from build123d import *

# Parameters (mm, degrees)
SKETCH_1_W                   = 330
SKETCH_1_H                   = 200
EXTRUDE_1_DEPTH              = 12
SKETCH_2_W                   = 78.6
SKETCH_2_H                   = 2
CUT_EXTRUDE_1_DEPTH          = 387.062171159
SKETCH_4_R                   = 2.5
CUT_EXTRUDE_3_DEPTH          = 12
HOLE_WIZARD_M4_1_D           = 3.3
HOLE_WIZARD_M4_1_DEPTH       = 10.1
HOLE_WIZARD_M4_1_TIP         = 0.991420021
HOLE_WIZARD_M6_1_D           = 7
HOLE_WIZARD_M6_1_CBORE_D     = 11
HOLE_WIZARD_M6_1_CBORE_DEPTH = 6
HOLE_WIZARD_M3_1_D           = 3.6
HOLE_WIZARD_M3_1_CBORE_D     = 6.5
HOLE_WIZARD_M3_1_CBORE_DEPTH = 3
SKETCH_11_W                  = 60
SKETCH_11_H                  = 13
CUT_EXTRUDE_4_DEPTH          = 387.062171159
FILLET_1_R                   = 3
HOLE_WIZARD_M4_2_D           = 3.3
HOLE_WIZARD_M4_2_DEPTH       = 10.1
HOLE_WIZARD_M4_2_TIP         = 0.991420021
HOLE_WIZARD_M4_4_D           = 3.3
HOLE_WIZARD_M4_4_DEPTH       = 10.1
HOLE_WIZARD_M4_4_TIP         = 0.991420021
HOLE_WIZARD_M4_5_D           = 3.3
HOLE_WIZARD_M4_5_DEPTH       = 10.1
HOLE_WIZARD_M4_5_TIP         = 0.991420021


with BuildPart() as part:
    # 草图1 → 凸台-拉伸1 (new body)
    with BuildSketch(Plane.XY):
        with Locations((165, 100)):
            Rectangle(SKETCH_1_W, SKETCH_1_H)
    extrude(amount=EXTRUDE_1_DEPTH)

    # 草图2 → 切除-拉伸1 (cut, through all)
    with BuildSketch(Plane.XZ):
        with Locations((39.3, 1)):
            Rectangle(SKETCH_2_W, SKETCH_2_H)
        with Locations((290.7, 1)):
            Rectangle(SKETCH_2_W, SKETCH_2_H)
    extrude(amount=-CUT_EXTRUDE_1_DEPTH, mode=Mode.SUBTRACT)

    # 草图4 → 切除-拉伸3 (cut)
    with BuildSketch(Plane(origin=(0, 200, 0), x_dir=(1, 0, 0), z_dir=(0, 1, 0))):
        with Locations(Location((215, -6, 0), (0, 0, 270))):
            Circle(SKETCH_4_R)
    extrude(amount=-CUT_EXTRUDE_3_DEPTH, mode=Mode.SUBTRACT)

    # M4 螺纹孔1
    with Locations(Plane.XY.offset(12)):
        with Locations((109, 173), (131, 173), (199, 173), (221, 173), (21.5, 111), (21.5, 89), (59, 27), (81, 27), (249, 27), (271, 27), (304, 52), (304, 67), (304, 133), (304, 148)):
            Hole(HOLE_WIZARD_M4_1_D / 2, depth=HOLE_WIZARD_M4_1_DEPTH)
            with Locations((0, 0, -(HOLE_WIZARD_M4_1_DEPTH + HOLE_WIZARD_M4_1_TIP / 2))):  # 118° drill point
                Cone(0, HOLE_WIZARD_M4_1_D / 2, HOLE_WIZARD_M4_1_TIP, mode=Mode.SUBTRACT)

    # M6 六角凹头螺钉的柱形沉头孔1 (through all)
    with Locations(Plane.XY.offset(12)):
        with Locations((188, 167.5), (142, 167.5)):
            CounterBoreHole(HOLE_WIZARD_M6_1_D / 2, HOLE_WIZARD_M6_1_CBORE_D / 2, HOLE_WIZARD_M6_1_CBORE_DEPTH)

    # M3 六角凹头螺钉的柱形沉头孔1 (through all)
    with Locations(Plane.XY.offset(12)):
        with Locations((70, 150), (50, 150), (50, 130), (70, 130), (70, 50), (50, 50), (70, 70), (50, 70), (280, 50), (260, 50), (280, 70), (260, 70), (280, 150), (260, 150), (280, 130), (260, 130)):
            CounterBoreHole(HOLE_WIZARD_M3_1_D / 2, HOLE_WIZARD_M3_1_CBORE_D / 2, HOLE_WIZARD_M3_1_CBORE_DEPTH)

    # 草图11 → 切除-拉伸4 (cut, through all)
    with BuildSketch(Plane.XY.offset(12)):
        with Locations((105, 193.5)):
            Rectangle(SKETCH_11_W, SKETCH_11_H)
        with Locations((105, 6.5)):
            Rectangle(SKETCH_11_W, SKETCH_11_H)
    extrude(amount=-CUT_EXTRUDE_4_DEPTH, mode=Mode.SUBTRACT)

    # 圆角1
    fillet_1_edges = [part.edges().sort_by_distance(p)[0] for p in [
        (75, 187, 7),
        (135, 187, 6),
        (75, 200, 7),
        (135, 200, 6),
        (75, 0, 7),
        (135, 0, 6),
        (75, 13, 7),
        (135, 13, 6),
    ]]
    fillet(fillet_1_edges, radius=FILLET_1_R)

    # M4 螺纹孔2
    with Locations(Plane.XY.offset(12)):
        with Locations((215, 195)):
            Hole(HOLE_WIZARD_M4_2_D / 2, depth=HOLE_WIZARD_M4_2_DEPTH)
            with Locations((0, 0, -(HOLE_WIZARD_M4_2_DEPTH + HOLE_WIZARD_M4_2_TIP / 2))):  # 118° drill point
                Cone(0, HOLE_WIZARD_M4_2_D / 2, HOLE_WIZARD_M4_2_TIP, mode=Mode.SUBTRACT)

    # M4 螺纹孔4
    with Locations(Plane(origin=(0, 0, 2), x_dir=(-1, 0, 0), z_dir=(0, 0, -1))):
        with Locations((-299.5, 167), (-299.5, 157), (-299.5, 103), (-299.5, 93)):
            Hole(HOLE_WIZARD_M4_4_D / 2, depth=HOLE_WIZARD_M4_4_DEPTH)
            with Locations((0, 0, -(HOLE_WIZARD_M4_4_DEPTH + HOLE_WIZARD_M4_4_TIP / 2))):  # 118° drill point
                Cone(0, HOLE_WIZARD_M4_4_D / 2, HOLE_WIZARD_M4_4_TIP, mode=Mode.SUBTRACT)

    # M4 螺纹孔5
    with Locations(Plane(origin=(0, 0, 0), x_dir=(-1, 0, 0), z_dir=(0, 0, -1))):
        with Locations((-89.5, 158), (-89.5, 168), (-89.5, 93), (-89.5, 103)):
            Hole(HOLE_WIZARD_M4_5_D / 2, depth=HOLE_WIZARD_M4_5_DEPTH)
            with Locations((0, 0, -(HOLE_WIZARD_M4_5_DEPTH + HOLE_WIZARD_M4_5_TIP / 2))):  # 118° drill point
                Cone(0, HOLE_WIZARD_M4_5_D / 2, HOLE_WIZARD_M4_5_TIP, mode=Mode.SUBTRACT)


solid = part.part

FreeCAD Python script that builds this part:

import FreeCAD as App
import Part
import Sketcher
from FreeCAD import Vector
Q = App.Units.Quantity


def edges_at(feature, points):
    """Names of the edges that pass closest to the given points."""
    edges = feature.Shape.Edges
    near = lambda p: min(range(len(edges)), key=lambda i: edges[i].distToShape(Part.Vertex(*p))[0])
    return sorted({f"Edge{near(p) + 1}" for p in points})


def add_polygon(sketch, points):
    """Adds a closed chain of lines whose ends are joined by coincident constraints."""
    first, n = sketch.GeometryCount, len(points)
    for a, b in zip(points, points[1:] + points[:1]):
        sketch.addGeometry(Part.LineSegment(App.Vector(*a, 0), App.Vector(*b, 0)), False)
    for i in range(n):
        sketch.addConstraint(Sketcher.Constraint("Coincident", first + i, 2, first + (i + 1) % n, 1))

doc = App.newDocument("Part")
params = doc.addObject("Spreadsheet::Sheet", "Params")
for row, (alias, value) in enumerate([
    ("sketch1_width", "330 mm"),
    ("sketch1_height", "200 mm"),
    ("pad1_length", "12 mm"),
    ("sketch2_height", "2 mm"),
    ("sketch2_width", "78.6 mm"),
    ("sketch3_diameter", "5 mm"),
    ("pocket2_length", "12 mm"),
    ("sketch4_diameter", "3.3 mm"),
    ("hole_diameter", "3.3 mm"),
    ("hole_depth", "10.1 mm"),
    ("sketch5_diameter", "7 mm"),
    ("hole2_diameter", "7 mm"),
    ("hole2_cbore_diameter", "11 mm"),
    ("hole2_cbore_depth", "6 mm"),
    ("sketch6_diameter", "3.6 mm"),
    ("hole3_diameter", "3.6 mm"),
    ("hole3_cbore_diameter", "6.5 mm"),
    ("hole3_cbore_depth", "3 mm"),
    ("sketch7_width", "60 mm"),
    ("sketch7_height", "13 mm"),
    ("fillet_radius", "3 mm"),
    ("sketch8_diameter", "3.3 mm"),
    ("hole4_diameter", "3.3 mm"),
    ("hole4_depth", "10.1 mm"),
    ("sketch9_diameter", "3.3 mm"),
    ("hole5_diameter", "3.3 mm"),
    ("hole5_depth", "10.1 mm"),
    ("sketch10_diameter", "3.3 mm"),
    ("hole6_diameter", "3.3 mm"),
    ("hole6_depth", "10.1 mm"),
], start=1):
    params.set(f"A{row}", alias)
    params.set(f"B{row}", "=" + value)
    params.setAlias(f"B{row}", alias)

body = doc.addObject("PartDesign::Body", "Body")

# Sketch on XY plane
sketch1 = body.newObject("Sketcher::SketchObject", "Sketch")
sketch1.AttachmentSupport = (doc.getObject("XY_Plane"), [""])
sketch1.MapMode = "FlatFace"
add_polygon(sketch1, [(0, 200), (0, 0), (330, 0), (330, 200)])  # lines 0-3
sketch1.addConstraint([
    Sketcher.Constraint("Vertical", 0),
    Sketcher.Constraint("Horizontal", 1),
    Sketcher.Constraint("Vertical", 2),
    Sketcher.Constraint("Horizontal", 3),
    Sketcher.Constraint("Coincident", 0, 2, -1, 1),
    Sketcher.Constraint("DistanceX", 1, 1, 1, 2, Q("330 mm")),
    Sketcher.Constraint("DistanceY", 0, 2, 0, 1, Q("200 mm")),
])
sketch1.setExpression("Constraints[9]", "Params.sketch1_width")
sketch1.setExpression("Constraints[10]", "Params.sketch1_height")
pad1 = body.newObject("PartDesign::Pad", "Pad")
pad1.Profile = sketch1
pad1.setExpression("Length", "Params.pad1_length")

# Sketch on XZ plane
sketch2 = body.newObject("Sketcher::SketchObject", "Sketch001")
sketch2.AttachmentSupport = (doc.getObject("XZ_Plane"), [""])
sketch2.MapMode = "FlatFace"
add_polygon(sketch2, [(0, 2), (0, 0), (78.6, 0), (78.6, 2)])  # lines 0-3
add_polygon(sketch2, [(251.4, 2), (251.4, 0), (330, 0), (330, 2)])  # lines 4-7
sketch2.addConstraint([
    Sketcher.Constraint("Vertical", 0),
    Sketcher.Constraint("Horizontal", 1),
    Sketcher.Constraint("Vertical", 2),
    Sketcher.Constraint("Horizontal", 3),
    Sketcher.Constraint("Vertical", 4),
    Sketcher.Constraint("Horizontal", 5),
    Sketcher.Constraint("Vertical", 6),
    Sketcher.Constraint("Horizontal", 7),
    Sketcher.Constraint("Coincident", 0, 2, -1, 1),
    Sketcher.Constraint("PointOnObject", 4, 2, -1),
    Sketcher.Constraint("Horizontal", 3, 2, 6, 2),
    Sketcher.Constraint("Equal", 3, 5),
    Sketcher.Constraint("DistanceY", 0, 2, 0, 1, Q("2 mm")),
    Sketcher.Constraint("DistanceX", 1, 1, 1, 2, Q("78.6 mm")),
    Sketcher.Constraint("DistanceX", -1, 1, 5, 2, Q("330 mm")),
])
sketch2.setExpression("Constraints[20]", "Params.sketch2_height")
sketch2.setExpression("Constraints[21]", "Params.sketch2_width")
pocket1 = body.newObject("PartDesign::Pocket", "Pocket")
pocket1.Profile = sketch2
pocket1.Type = "ThroughAll"

# Sketch on XZ plane
sketch3 = body.newObject("Sketcher::SketchObject", "Sketch002")
sketch3.AttachmentSupport = (doc.getObject("XZ_Plane"), [""])
sketch3.MapMode = "FlatFace"
sketch3.AttachmentOffset = App.Placement(Vector(0, 0, -200), App.Rotation())
sketch3.addGeometry(Part.Circle(Vector(215, 6, 0), Vector(0, 0, 1), 2.5), False)
sketch3.addConstraint([
    Sketcher.Constraint("Diameter", 0, Q("5 mm")),
    Sketcher.Constraint("DistanceX", -1, 1, 0, 3, Q("215 mm")),
    Sketcher.Constraint("DistanceY", -1, 1, 0, 3, Q("6 mm")),
])
sketch3.setExpression("Constraints[0]", "Params.sketch3_diameter")
pocket2 = body.newObject("PartDesign::Pocket", "Pocket001")
pocket2.Profile = sketch3
pocket2.setExpression("Length", "Params.pocket2_length")
pocket2.Reversed = True

# Sketch on XY plane
sketch4 = body.newObject("Sketcher::SketchObject", "Sketch003")
sketch4.AttachmentSupport = (doc.getObject("XY_Plane"), [""])
sketch4.MapMode = "FlatFace"
sketch4.AttachmentOffset = App.Placement(Vector(0, 0, 12), App.Rotation())
sketch4.addGeometry([
    Part.Circle(Vector(109, 173, 0), Vector(0, 0, 1), 1.65),  # 0
    Part.Circle(Vector(131, 173, 0), Vector(0, 0, 1), 1.65),  # 1
    Part.Circle(Vector(199, 173, 0), Vector(0, 0, 1), 1.65),  # 2
    Part.Circle(Vector(221, 173, 0), Vector(0, 0, 1), 1.65),  # 3
    Part.Circle(Vector(21.5, 111, 0), Vector(0, 0, 1), 1.65),  # 4
    Part.Circle(Vector(21.5, 89, 0), Vector(0, 0, 1), 1.65),  # 5
    Part.Circle(Vector(59, 27, 0), Vector(0, 0, 1), 1.65),  # 6
    Part.Circle(Vector(81, 27, 0), Vector(0, 0, 1), 1.65),  # 7
    Part.Circle(Vector(249, 27, 0), Vector(0, 0, 1), 1.65),  # 8
    Part.Circle(Vector(271, 27, 0), Vector(0, 0, 1), 1.65),  # 9
    Part.Circle(Vector(304, 52, 0), Vector(0, 0, 1), 1.65),  # 10
    Part.Circle(Vector(304, 67, 0), Vector(0, 0, 1), 1.65),  # 11
    Part.Circle(Vector(304, 133, 0), Vector(0, 0, 1), 1.65),  # 12
    Part.Circle(Vector(304, 148, 0), Vector(0, 0, 1), 1.65),  # 13
], False)
sketch4.addConstraint([
    Sketcher.Constraint("Equal", 0, 1),
    Sketcher.Constraint("Equal", 1, 2),
    Sketcher.Constraint("Equal", 2, 3),
    Sketcher.Constraint("Equal", 3, 4),
    Sketcher.Constraint("Equal", 4, 5),
    Sketcher.Constraint("Equal", 5, 6),
    Sketcher.Constraint("Equal", 6, 7),
    Sketcher.Constraint("Equal", 7, 8),
    Sketcher.Constraint("Equal", 8, 9),
    Sketcher.Constraint("Equal", 9, 10),
    Sketcher.Constraint("Equal", 10, 11),
    Sketcher.Constraint("Equal", 11, 12),
    Sketcher.Constraint("Equal", 12, 13),
    Sketcher.Constraint("Horizontal", 0, 3, 1, 3),
    Sketcher.Constraint("Horizontal", 1, 3, 2, 3),
    Sketcher.Constraint("Horizontal", 2, 3, 3, 3),
    Sketcher.Constraint("Horizontal", 6, 3, 7, 3),
    Sketcher.Constraint("Horizontal", 7, 3, 8, 3),
    Sketcher.Constraint("Horizontal", 8, 3, 9, 3),
    Sketcher.Constraint("Vertical", 4, 3, 5, 3),
    Sketcher.Constraint("Vertical", 10, 3, 11, 3),
    Sketcher.Constraint("Vertical", 11, 3, 12, 3),
    Sketcher.Constraint("Vertical", 12, 3, 13, 3),
    Sketcher.Constraint("Diameter", 0, Q("3.3 mm")),
    Sketcher.Constraint("DistanceX", -1, 1, 0, 3, Q("109 mm")),
    Sketcher.Constraint("DistanceY", -1, 1, 0, 3, Q("173 mm")),
    Sketcher.Constraint("DistanceX", -1, 1, 1, 3, Q("131 mm")),
    Sketcher.Constraint("DistanceX", -1, 1, 2, 3, Q("199 mm")),
    Sketcher.Constraint("DistanceX", -1, 1, 3, 3, Q("221 mm")),
    Sketcher.Constraint("DistanceY", -1, 1, 4, 3, Q("111 mm")),
    Sketcher.Constraint("DistanceY", -1, 1, 5, 3, Q("89 mm")),
    Sketcher.Constraint("DistanceX", -1, 1, 6, 3, Q("59 mm")),
    Sketcher.Constraint("DistanceY", -1, 1, 6, 3, Q("27 mm")),
    Sketcher.Constraint("DistanceX", -1, 1, 7, 3, Q("81 mm")),
    Sketcher.Constraint("DistanceX", -1, 1, 8, 3, Q("249 mm")),
    Sketcher.Constraint("DistanceX", -1, 1, 9, 3, Q("271 mm")),
    Sketcher.Constraint("DistanceX", -1, 1, 10, 3, Q("304 mm")),
    Sketcher.Constraint("DistanceY", -1, 1, 10, 3, Q("52 mm")),
    Sketcher.Constraint("DistanceY", -1, 1, 11, 3, Q("67 mm")),
    Sketcher.Constraint("DistanceY", -1, 1, 12, 3, Q("133 mm")),
    Sketcher.Constraint("DistanceY", -1, 1, 13, 3, Q("148 mm")),
    Sketcher.Constraint("DistanceX", -1, 1, 4, 3, Q("21.5 mm")),
])
sketch4.setExpression("Constraints[23]", "Params.sketch4_diameter")
doc.recompute()
hole = body.newObject("PartDesign::Hole", "Hole")
hole.Profile = sketch4
hole.ThreadType = "None"
hole.setExpression("Diameter", "Params.hole_diameter")
hole.DepthType = "Dimension"
hole.setExpression("Depth", "Params.hole_depth")
hole.DrillPoint = "Angled"
hole.DrillPointAngle = 118

# Sketch on XY plane
sketch5 = body.newObject("Sketcher::SketchObject", "Sketch004")
sketch5.AttachmentSupport = (doc.getObject("XY_Plane"), [""])
sketch5.MapMode = "FlatFace"
sketch5.AttachmentOffset = App.Placement(Vector(0, 0, 12), App.Rotation())
sketch5.addGeometry([
    Part.Circle(Vector(188, 167.5, 0), Vector(0, 0, 1), 3.5),
    Part.Circle(Vector(142, 167.5, 0), Vector(0, 0, 1), 3.5),
], False)
sketch5.addConstraint([
    Sketcher.Constraint("Equal", 0, 1),
    Sketcher.Constraint("Horizontal", 0, 3, 1, 3),
    Sketcher.Constraint("Diameter", 0, Q("7 mm")),
    Sketcher.Constraint("DistanceX", -1, 1, 0, 3, Q("188 mm")),
    Sketcher.Constraint("DistanceX", -1, 1, 1, 3, Q("142 mm")),
    Sketcher.Constraint("DistanceY", -1, 1, 0, 3, Q("167.5 mm")),
])
sketch5.setExpression("Constraints[2]", "Params.sketch5_diameter")
doc.recompute()
hole2 = body.newObject("PartDesign::Hole", "Hole001")
hole2.Profile = sketch5
hole2.ThreadType = "None"
hole2.setExpression("Diameter", "Params.hole2_diameter")
hole2.DepthType = "ThroughAll"
hole2.HoleCutType = "Counterbore"
hole2.setExpression("HoleCutDiameter", "Params.hole2_cbore_diameter")
hole2.setExpression("HoleCutDepth", "Params.hole2_cbore_depth")

# Sketch on XY plane
sketch6 = body.newObject("Sketcher::SketchObject", "Sketch005")
sketch6.AttachmentSupport = (doc.getObject("XY_Plane"), [""])
sketch6.MapMode = "FlatFace"
sketch6.AttachmentOffset = App.Placement(Vector(0, 0, 12), App.Rotation())
sketch6.addGeometry([
    Part.Circle(Vector(70, 150, 0), Vector(0, 0, 1), 1.8),  # 0
    Part.Circle(Vector(50, 150, 0), Vector(0, 0, 1), 1.8),  # 1
    Part.Circle(Vector(50, 130, 0), Vector(0, 0, 1), 1.8),  # 2
    Part.Circle(Vector(70, 130, 0), Vector(0, 0, 1), 1.8),  # 3
    Part.Circle(Vector(70, 50, 0), Vector(0, 0, 1), 1.8),  # 4
    Part.Circle(Vector(50, 50, 0), Vector(0, 0, 1), 1.8),  # 5
    Part.Circle(Vector(70, 70, 0), Vector(0, 0, 1), 1.8),  # 6
    Part.Circle(Vector(50, 70, 0), Vector(0, 0, 1), 1.8),  # 7
    Part.Circle(Vector(280, 50, 0), Vector(0, 0, 1), 1.8),  # 8
    Part.Circle(Vector(260, 50, 0), Vector(0, 0, 1), 1.8),  # 9
    Part.Circle(Vector(280, 70, 0), Vector(0, 0, 1), 1.8),  # 10
    Part.Circle(Vector(260, 70, 0), Vector(0, 0, 1), 1.8),  # 11
    Part.Circle(Vector(280, 150, 0), Vector(0, 0, 1), 1.8),  # 12
    Part.Circle(Vector(260, 150, 0), Vector(0, 0, 1), 1.8),  # 13
    Part.Circle(Vector(280, 130, 0), Vector(0, 0, 1), 1.8),  # 14
    Part.Circle(Vector(260, 130, 0), Vector(0, 0, 1), 1.8),  # 15
], False)
sketch6.addConstraint([
    Sketcher.Constraint("Equal", 0, 1),
    Sketcher.Constraint("Equal", 1, 2),
    Sketcher.Constraint("Equal", 2, 3),
    Sketcher.Constraint("Equal", 3, 4),
    Sketcher.Constraint("Equal", 4, 5),
    Sketcher.Constraint("Equal", 5, 6),
    Sketcher.Constraint("Equal", 6, 7),
    Sketcher.Constraint("Equal", 7, 8),
    Sketcher.Constraint("Equal", 8, 9),
    Sketcher.Constraint("Equal", 9, 10),
    Sketcher.Constraint("Equal", 10, 11),
    Sketcher.Constraint("Equal", 11, 12),
    Sketcher.Constraint("Equal", 12, 13),
    Sketcher.Constraint("Equal", 13, 14),
    Sketcher.Constraint("Equal", 14, 15),
    Sketcher.Constraint("Horizontal", 0, 3, 1, 3),
    Sketcher.Constraint("Horizontal", 2, 3, 3, 3),
    Sketcher.Constraint("Horizontal", 4, 3, 5, 3),
    Sketcher.Constraint("Horizontal", 6, 3, 7, 3),
    Sketcher.Constraint("Horizontal", 5, 3, 8, 3),
    Sketcher.Constraint("Horizontal", 8, 3, 9, 3),
    Sketcher.Constraint("Horizontal", 7, 3, 10, 3),
    Sketcher.Constraint("Horizontal", 10, 3, 11, 3),
    Sketcher.Constraint("Horizontal", 1, 3, 12, 3),
    Sketcher.Constraint("Horizontal", 12, 3, 13, 3),
    Sketcher.Constraint("Horizontal", 3, 3, 14, 3),
    Sketcher.Constraint("Horizontal", 14, 3, 15, 3),
    Sketcher.Constraint("Vertical", 1, 3, 2, 3),
    Sketcher.Constraint("Vertical", 0, 3, 3, 3),
    Sketcher.Constraint("Vertical", 3, 3, 4, 3),
    Sketcher.Constraint("Vertical", 2, 3, 5, 3),
    Sketcher.Constraint("Vertical", 4, 3, 6, 3),
    Sketcher.Constraint("Vertical", 5, 3, 7, 3),
    Sketcher.Constraint("Vertical", 8, 3, 10, 3),
    Sketcher.Constraint("Vertical", 9, 3, 11, 3),
    Sketcher.Constraint("Vertical", 10, 3, 12, 3),
    Sketcher.Constraint("Vertical", 11, 3, 13, 3),
    Sketcher.Constraint("Vertical", 12, 3, 14, 3),
    Sketcher.Constraint("Vertical", 13, 3, 15, 3),
    Sketcher.Constraint("Diameter", 0, Q("3.6 mm")),
    Sketcher.Constraint("DistanceX", -1, 1, 0, 3, Q("70 mm")),
    Sketcher.Constraint("DistanceY", -1, 1, 0, 3, Q("150 mm")),
    Sketcher.Constraint("DistanceX", -1, 1, 1, 3, Q("50 mm")),
    Sketcher.Constraint("DistanceY", -1, 1, 2, 3, Q("130 mm")),
    Sketcher.Constraint("DistanceY", -1, 1, 4, 3, Q("50 mm")),
    Sketcher.Constraint("DistanceY", -1, 1, 6, 3, Q("70 mm")),
    Sketcher.Constraint("DistanceX", -1, 1, 8, 3, Q("280 mm")),
    Sketcher.Constraint("DistanceX", -1, 1, 9, 3, Q("260 mm")),
])
sketch6.setExpression("Constraints[39]", "Params.sketch6_diameter")
doc.recompute()
hole3 = body.newObject("PartDesign::Hole", "Hole002")
hole3.Profile = sketch6
hole3.ThreadType = "None"
hole3.setExpression("Diameter", "Params.hole3_diameter")
hole3.DepthType = "ThroughAll"
hole3.HoleCutType = "Counterbore"
hole3.setExpression("HoleCutDiameter", "Params.hole3_cbore_diameter")
hole3.setExpression("HoleCutDepth", "Params.hole3_cbore_depth")

# Sketch on XY plane
sketch7 = body.newObject("Sketcher::SketchObject", "Sketch006")
sketch7.AttachmentSupport = (doc.getObject("XY_Plane"), [""])
sketch7.MapMode = "FlatFace"
sketch7.AttachmentOffset = App.Placement(Vector(0, 0, 12), App.Rotation())
add_polygon(sketch7, [(75, 200), (75, 187), (135, 187), (135, 200)])  # lines 0-3
add_polygon(sketch7, [(75, 13), (75, 0), (135, 0), (135, 13)])  # lines 4-7
sketch7.addConstraint([
    Sketcher.Constraint("Vertical", 0),
    Sketcher.Constraint("Horizontal", 1),
    Sketcher.Constraint("Vertical", 2),
    Sketcher.Constraint("Horizontal", 3),
    Sketcher.Constraint("Vertical", 4),
    Sketcher.Constraint("Horizontal", 5),
    Sketcher.Constraint("Vertical", 6),
    Sketcher.Constraint("Horizontal", 7),
    Sketcher.Constraint("PointOnObject", 4, 2, -1),
    Sketcher.Constraint("Vertical", 3, 2, 4, 2),
    Sketcher.Constraint("Vertical", 2, 2, 5, 2),
    Sketcher.Constraint("Equal", 2, 4),
    Sketcher.Constraint("DistanceX", 1, 1, 1, 2, Q("60 mm")),
    Sketcher.Constraint("DistanceY", 0, 2, 0, 1, Q("13 mm")),
    Sketcher.Constraint("DistanceX", -1, 1, 0, 2, Q("75 mm")),
    Sketcher.Constraint("DistanceY", -1, 1, 0, 2, Q("187 mm")),
])
sketch7.setExpression("Constraints[20]", "Params.sketch7_width")
sketch7.setExpression("Constraints[21]", "Params.sketch7_height")
pocket3 = body.newObject("PartDesign::Pocket", "Pocket002")
pocket3.Profile = sketch7
pocket3.Type = "ThroughAll"
doc.recompute()

fillet = body.newObject("PartDesign::Fillet", "Fillet")
fillet.Base = (pocket3, edges_at(pocket3, [
    (75, 187, 7),
    (135, 187, 6),
    (75, 200, 7),
    (135, 200, 6),
    (75, 0, 7),
    (135, 0, 6),
    (75, 13, 7),
    (135, 13, 6),
]))
fillet.setExpression("Radius", "Params.fillet_radius")

# Sketch on XY plane
sketch8 = body.newObject("Sketcher::SketchObject", "Sketch007")
sketch8.AttachmentSupport = (doc.getObject("XY_Plane"), [""])
sketch8.MapMode = "FlatFace"
sketch8.AttachmentOffset = App.Placement(Vector(0, 0, 12), App.Rotation())
sketch8.addGeometry(Part.Circle(Vector(215, 195, 0), Vector(0, 0, 1), 1.65), False)
sketch8.addConstraint([
    Sketcher.Constraint("Diameter", 0, Q("3.3 mm")),
    Sketcher.Constraint("DistanceX", -1, 1, 0, 3, Q("215 mm")),
    Sketcher.Constraint("DistanceY", -1, 1, 0, 3, Q("195 mm")),
])
sketch8.setExpression("Constraints[0]", "Params.sketch8_diameter")
doc.recompute()
hole4 = body.newObject("PartDesign::Hole", "Hole003")
hole4.Profile = sketch8
hole4.ThreadType = "None"
hole4.setExpression("Diameter", "Params.hole4_diameter")
hole4.DepthType = "Dimension"
hole4.setExpression("Depth", "Params.hole4_depth")
hole4.DrillPoint = "Angled"
hole4.DrillPointAngle = 118

# Sketch on XY plane
sketch9 = body.newObject("Sketcher::SketchObject", "Sketch008")
sketch9.AttachmentSupport = (doc.getObject("XY_Plane"), [""])
sketch9.MapMode = "FlatFace"
sketch9.AttachmentOffset = App.Placement(Vector(0, 0, 2), App.Rotation())
sketch9.addGeometry([
    Part.Circle(Vector(299.5, 167, 0), Vector(0, 0, 1), 1.65),
    Part.Circle(Vector(299.5, 157, 0), Vector(0, 0, 1), 1.65),
    Part.Circle(Vector(299.5, 103, 0), Vector(0, 0, 1), 1.65),
    Part.Circle(Vector(299.5, 93, 0), Vector(0, 0, 1), 1.65),
], False)
sketch9.addConstraint([
    Sketcher.Constraint("Equal", 0, 1),
    Sketcher.Constraint("Equal", 1, 2),
    Sketcher.Constraint("Equal", 2, 3),
    Sketcher.Constraint("Vertical", 0, 3, 1, 3),
    Sketcher.Constraint("Vertical", 1, 3, 2, 3),
    Sketcher.Constraint("Vertical", 2, 3, 3, 3),
    Sketcher.Constraint("Diameter", 0, Q("3.3 mm")),
    Sketcher.Constraint("DistanceY", -1, 1, 0, 3, Q("167 mm")),
    Sketcher.Constraint("DistanceY", -1, 1, 1, 3, Q("157 mm")),
    Sketcher.Constraint("DistanceY", -1, 1, 2, 3, Q("103 mm")),
    Sketcher.Constraint("DistanceY", -1, 1, 3, 3, Q("93 mm")),
    Sketcher.Constraint("DistanceX", -1, 1, 0, 3, Q("299.5 mm")),
])
sketch9.setExpression("Constraints[6]", "Params.sketch9_diameter")
doc.recompute()
hole5 = body.newObject("PartDesign::Hole", "Hole004")
hole5.Profile = sketch9
hole5.ThreadType = "None"
hole5.setExpression("Diameter", "Params.hole5_diameter")
hole5.DepthType = "Dimension"
hole5.setExpression("Depth", "Params.hole5_depth")
hole5.DrillPoint = "Angled"
hole5.DrillPointAngle = 118
hole5.Reversed = True

# Sketch on XY plane
sketch10 = body.newObject("Sketcher::SketchObject", "Sketch009")
sketch10.AttachmentSupport = (doc.getObject("XY_Plane"), [""])
sketch10.MapMode = "FlatFace"
sketch10.addGeometry([
    Part.Circle(Vector(89.5, 158, 0), Vector(0, 0, 1), 1.65),
    Part.Circle(Vector(89.5, 168, 0), Vector(0, 0, 1), 1.65),
    Part.Circle(Vector(89.5, 93, 0), Vector(0, 0, 1), 1.65),
    Part.Circle(Vector(89.5, 103, 0), Vector(0, 0, 1), 1.65),
], False)
sketch10.addConstraint([
    Sketcher.Constraint("Equal", 0, 1),
    Sketcher.Constraint("Equal", 1, 2),
    Sketcher.Constraint("Equal", 2, 3),
    Sketcher.Constraint("Vertical", 0, 3, 1, 3),
    Sketcher.Constraint("Vertical", 1, 3, 2, 3),
    Sketcher.Constraint("Vertical", 2, 3, 3, 3),
    Sketcher.Constraint("Diameter", 0, Q("3.3 mm")),
    Sketcher.Constraint("DistanceY", -1, 1, 0, 3, Q("158 mm")),
    Sketcher.Constraint("DistanceY", -1, 1, 1, 3, Q("168 mm")),
    Sketcher.Constraint("DistanceY", -1, 1, 2, 3, Q("93 mm")),
    Sketcher.Constraint("DistanceY", -1, 1, 3, 3, Q("103 mm")),
    Sketcher.Constraint("DistanceX", -1, 1, 0, 3, Q("89.5 mm")),
])
sketch10.setExpression("Constraints[6]", "Params.sketch10_diameter")
doc.recompute()
hole6 = body.newObject("PartDesign::Hole", "Hole005")
hole6.Profile = sketch10
hole6.ThreadType = "None"
hole6.setExpression("Diameter", "Params.hole6_diameter")
hole6.DepthType = "Dimension"
hole6.setExpression("Depth", "Params.hole6_depth")
hole6.DrillPoint = "Angled"
hole6.DrillPointAngle = 118
hole6.Reversed = True

doc.recompute()
